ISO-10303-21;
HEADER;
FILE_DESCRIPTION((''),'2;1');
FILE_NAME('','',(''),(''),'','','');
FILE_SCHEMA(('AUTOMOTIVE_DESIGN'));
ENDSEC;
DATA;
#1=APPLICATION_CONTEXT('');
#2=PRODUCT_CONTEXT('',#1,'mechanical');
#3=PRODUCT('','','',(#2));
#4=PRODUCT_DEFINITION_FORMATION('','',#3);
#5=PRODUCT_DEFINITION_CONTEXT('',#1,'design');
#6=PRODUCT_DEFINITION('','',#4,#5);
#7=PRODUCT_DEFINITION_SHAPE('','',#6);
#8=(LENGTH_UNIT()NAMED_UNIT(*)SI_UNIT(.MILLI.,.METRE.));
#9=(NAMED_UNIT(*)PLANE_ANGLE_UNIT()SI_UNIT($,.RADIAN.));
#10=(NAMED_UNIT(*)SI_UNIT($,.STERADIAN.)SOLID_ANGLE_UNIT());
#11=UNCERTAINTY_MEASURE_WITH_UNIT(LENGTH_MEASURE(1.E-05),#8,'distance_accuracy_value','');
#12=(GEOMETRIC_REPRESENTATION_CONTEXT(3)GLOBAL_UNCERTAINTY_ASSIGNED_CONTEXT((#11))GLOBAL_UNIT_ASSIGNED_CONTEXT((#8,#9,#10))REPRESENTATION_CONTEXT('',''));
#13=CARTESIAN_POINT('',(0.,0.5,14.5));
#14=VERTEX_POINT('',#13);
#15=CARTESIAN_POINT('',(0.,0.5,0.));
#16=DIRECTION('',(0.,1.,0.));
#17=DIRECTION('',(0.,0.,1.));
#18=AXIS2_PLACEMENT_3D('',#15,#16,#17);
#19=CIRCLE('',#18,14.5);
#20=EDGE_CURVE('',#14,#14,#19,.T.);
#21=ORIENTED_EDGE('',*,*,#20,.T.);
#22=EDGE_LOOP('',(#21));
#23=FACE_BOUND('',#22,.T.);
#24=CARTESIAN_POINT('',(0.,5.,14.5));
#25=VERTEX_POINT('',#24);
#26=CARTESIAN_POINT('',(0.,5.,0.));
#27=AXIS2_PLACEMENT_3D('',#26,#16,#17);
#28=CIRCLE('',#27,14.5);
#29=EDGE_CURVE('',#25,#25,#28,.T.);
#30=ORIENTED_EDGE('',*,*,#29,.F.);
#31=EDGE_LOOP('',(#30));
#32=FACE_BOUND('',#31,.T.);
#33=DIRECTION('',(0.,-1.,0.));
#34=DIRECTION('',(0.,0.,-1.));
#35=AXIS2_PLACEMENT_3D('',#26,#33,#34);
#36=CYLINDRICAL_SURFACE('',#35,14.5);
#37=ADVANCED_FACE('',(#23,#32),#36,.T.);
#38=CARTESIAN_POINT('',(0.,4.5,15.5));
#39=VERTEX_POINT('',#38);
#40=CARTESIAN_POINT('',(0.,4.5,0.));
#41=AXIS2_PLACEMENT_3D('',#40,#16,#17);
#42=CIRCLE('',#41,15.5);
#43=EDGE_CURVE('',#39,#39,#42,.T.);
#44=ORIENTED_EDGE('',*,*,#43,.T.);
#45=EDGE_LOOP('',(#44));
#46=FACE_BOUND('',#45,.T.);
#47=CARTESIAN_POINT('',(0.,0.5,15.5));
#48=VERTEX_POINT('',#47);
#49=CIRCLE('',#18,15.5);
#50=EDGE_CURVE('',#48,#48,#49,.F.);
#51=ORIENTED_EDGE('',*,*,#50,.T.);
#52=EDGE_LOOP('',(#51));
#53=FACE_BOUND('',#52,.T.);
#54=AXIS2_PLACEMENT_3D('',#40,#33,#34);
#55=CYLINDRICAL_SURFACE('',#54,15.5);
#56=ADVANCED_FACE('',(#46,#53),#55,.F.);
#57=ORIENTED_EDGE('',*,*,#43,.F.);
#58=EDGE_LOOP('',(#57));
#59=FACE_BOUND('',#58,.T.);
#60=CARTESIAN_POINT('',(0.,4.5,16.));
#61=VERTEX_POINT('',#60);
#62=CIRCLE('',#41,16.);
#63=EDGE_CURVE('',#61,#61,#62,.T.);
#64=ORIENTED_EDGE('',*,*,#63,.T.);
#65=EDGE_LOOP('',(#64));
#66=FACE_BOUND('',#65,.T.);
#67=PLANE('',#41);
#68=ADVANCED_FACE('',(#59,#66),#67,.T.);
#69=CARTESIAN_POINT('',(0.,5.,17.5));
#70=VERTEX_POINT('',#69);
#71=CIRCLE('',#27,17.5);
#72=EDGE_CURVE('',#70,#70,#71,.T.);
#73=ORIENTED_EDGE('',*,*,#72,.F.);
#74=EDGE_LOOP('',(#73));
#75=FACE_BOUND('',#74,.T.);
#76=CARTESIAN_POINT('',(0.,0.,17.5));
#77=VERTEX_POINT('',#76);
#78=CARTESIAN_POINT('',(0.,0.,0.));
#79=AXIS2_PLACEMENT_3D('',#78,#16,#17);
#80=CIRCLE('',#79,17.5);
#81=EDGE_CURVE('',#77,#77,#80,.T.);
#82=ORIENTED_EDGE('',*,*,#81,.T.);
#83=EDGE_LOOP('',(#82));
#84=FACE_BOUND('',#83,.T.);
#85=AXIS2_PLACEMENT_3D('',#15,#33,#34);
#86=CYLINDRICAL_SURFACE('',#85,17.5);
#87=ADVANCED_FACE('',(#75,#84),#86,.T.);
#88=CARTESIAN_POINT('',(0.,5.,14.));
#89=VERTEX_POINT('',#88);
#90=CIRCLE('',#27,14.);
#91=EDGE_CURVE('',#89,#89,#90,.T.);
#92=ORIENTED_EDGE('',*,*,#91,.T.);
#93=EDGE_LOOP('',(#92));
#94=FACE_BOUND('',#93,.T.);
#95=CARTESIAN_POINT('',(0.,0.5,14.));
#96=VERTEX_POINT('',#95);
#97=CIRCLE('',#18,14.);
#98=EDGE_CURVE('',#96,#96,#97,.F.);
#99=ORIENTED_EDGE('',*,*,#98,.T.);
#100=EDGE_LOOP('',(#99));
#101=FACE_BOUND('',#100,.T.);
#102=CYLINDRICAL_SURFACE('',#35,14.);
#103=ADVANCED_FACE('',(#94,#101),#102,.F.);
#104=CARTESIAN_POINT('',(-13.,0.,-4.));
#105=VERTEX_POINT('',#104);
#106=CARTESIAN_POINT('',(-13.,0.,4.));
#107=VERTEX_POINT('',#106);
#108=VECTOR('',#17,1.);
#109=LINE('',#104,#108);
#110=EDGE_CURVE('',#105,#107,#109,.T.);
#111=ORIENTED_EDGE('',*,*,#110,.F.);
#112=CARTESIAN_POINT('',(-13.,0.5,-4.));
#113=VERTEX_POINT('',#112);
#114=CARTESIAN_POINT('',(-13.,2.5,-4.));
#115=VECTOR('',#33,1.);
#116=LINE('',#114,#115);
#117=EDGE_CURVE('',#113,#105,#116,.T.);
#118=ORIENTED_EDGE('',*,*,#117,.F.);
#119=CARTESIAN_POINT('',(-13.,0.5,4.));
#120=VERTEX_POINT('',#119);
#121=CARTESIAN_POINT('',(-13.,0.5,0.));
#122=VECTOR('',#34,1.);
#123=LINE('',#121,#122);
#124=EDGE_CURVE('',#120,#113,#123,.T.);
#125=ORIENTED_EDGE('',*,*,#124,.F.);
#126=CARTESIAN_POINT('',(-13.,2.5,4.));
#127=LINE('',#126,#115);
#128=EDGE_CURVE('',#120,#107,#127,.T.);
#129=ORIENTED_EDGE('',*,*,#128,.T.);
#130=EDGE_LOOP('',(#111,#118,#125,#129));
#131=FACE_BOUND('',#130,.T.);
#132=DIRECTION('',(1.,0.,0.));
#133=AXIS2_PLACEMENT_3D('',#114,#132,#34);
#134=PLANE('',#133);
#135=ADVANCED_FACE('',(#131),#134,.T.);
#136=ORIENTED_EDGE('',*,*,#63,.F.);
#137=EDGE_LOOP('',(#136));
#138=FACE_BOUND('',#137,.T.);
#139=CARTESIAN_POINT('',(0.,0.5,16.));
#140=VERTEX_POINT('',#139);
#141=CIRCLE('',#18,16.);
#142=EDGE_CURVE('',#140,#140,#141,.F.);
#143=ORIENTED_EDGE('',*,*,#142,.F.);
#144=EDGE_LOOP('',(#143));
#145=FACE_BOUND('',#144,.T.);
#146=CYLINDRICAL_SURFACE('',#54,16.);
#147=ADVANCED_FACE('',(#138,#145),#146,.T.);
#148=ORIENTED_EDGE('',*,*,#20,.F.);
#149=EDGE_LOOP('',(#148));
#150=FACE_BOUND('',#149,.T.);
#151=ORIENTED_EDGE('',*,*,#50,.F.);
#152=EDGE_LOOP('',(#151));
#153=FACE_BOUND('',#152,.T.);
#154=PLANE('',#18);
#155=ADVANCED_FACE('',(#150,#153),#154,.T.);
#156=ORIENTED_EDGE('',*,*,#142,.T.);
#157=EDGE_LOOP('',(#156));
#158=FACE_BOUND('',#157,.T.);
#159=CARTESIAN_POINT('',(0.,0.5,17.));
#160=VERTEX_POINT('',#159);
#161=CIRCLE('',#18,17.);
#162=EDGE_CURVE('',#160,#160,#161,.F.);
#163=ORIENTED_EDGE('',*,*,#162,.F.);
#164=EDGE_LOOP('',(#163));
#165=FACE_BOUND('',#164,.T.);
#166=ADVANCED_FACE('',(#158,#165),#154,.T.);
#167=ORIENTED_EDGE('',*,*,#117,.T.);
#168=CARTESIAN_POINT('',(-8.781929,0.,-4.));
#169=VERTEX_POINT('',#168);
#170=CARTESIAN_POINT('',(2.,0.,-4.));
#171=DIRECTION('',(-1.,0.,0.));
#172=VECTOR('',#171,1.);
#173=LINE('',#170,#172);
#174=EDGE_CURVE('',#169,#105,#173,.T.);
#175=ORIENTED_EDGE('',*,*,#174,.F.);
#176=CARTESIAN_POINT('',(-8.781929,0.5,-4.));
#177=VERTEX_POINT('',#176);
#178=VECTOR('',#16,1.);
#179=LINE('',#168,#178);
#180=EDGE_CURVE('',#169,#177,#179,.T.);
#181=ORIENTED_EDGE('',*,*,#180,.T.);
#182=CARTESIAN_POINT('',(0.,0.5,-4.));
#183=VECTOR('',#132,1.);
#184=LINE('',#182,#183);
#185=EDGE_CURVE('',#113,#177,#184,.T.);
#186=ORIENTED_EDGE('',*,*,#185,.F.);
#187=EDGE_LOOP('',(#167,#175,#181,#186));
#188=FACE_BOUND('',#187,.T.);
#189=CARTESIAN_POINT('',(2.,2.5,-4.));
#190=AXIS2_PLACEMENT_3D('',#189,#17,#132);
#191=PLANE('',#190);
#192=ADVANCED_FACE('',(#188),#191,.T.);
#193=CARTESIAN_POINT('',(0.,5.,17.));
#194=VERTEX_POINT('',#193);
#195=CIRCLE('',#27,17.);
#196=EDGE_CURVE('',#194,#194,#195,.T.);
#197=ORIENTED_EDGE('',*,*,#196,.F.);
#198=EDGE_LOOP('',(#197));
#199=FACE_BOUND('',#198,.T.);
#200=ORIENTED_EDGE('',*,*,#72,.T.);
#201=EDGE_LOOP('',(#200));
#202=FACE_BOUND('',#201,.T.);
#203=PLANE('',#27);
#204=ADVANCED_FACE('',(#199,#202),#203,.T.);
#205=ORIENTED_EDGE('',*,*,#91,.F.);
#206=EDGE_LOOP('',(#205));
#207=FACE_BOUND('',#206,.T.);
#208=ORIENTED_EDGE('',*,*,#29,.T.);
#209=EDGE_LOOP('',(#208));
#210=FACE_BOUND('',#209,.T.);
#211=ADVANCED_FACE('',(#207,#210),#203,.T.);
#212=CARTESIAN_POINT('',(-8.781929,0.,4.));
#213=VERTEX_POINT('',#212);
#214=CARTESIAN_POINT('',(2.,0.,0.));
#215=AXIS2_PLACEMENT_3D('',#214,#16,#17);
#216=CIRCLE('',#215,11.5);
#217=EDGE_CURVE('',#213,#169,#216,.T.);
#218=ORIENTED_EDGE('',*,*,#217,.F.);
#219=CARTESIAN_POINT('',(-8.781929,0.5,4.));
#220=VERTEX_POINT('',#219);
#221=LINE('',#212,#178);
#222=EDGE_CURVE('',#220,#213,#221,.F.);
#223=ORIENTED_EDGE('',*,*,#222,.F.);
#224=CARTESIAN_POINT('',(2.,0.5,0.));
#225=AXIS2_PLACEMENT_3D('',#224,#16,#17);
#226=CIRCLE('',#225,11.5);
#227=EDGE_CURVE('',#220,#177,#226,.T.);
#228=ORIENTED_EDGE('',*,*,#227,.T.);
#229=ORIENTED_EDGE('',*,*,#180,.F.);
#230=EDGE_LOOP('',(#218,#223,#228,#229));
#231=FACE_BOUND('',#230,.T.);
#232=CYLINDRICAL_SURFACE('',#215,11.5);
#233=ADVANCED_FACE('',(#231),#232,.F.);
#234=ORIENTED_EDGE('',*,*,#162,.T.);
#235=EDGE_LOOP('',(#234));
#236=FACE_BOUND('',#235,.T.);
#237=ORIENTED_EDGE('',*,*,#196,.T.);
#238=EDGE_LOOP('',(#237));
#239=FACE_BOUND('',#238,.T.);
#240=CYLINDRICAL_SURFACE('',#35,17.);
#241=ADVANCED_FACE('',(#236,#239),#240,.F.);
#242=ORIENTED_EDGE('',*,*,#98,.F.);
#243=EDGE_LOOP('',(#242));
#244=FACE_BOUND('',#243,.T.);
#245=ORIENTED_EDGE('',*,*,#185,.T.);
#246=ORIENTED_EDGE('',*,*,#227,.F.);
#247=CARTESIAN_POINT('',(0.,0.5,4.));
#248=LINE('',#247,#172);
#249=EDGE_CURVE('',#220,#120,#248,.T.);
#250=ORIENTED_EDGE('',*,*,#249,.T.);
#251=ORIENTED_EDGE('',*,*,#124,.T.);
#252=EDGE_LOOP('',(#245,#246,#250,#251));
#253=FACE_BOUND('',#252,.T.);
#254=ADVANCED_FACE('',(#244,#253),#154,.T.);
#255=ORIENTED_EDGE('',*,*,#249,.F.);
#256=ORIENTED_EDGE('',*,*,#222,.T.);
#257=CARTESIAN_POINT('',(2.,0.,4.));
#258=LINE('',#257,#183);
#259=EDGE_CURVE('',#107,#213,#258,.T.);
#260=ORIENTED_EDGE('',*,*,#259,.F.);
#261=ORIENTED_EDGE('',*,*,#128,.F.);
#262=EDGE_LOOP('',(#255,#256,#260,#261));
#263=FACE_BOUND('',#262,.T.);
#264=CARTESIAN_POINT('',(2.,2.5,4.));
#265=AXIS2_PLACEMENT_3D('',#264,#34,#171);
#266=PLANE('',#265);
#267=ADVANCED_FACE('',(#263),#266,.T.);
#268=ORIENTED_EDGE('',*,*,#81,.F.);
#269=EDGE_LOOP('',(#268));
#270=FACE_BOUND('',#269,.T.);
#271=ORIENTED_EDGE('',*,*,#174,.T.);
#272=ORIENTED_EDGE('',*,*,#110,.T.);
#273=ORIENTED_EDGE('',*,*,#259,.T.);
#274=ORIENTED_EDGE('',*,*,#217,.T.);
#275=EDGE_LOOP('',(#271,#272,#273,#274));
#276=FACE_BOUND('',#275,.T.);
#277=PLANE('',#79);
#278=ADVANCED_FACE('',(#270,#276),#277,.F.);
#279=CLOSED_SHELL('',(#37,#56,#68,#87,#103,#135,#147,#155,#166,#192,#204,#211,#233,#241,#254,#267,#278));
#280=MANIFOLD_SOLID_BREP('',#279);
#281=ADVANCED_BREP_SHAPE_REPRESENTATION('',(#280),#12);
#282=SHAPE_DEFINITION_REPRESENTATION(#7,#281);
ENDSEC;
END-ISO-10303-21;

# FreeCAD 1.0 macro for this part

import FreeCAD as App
import Part
import Sketcher
from FreeCAD import Vector
Q = App.Units.Quantity


def add_polygon(sketch, points):
    """Adds a closed chain of lines whose ends are joined by coincident constraints."""
    first, n = sketch.GeometryCount, len(points)
    for a, b in zip(points, points[1:] + points[:1]):
        sketch.addGeometry(Part.LineSegment(App.Vector(*a, 0), App.Vector(*b, 0)), False)
    for i in range(n):
        sketch.addConstraint(Sketcher.Constraint("Coincident", first + i, 2, first + (i + 1) % n, 1))

doc = App.newDocument("Part")
body = doc.addObject("PartDesign::Body", "Body")

# Sketch on XZ plane
sketch1 = body.newObject("Sketcher::SketchObject", "Sketch")
sketch1.AttachmentSupport = (doc.getObject("XZ_Plane"), [""])
sketch1.MapMode = "FlatFace"
sketch1.addGeometry(Part.Circle(Vector(0, 0, 0), Vector(0, 0, 1), 18), False)
sketch1.addConstraint([
    Sketcher.Constraint("Coincident", 0, 3, -1, 1),
    Sketcher.Constraint("Diameter", 0, Q("35 mm")),
])
pad1 = body.newObject("PartDesign::Pad", "Pad")
pad1.Profile = sketch1
pad1.Length = 0.5
pad1.Reversed = True

# Sketch on XZ plane
sketch2 = body.newObject("Sketcher::SketchObject", "Sketch001")
sketch2.AttachmentSupport = (doc.getObject("XZ_Plane"), [""])
sketch2.MapMode = "FlatFace"
sketch2.AttachmentOffset = App.Placement(Vector(0, 0, -0.5), App.Rotation())
sketch2.addGeometry(Part.Circle(Vector(2, 0, 0), Vector(0, 0, 1), 12), False)
sketch2.addConstraint([
    Sketcher.Constraint("PointOnObject", 0, 3, -1),
    Sketcher.Constraint("Diameter", 0, Q("23 mm")),
    Sketcher.Constraint("DistanceX", -1, 1, 0, 3, Q("2 mm")),
])
pocket1 = body.newObject("PartDesign::Pocket", "Pocket")
pocket1.Profile = sketch2
pocket1.Length = 0.5
pocket1.Reversed = True

# Sketch on XZ plane
sketch3 = body.newObject("Sketcher::SketchObject", "Sketch002")
sketch3.AttachmentSupport = (doc.getObject("XZ_Plane"), [""])
sketch3.MapMode = "FlatFace"
add_polygon(sketch3, [(-13, -4), (-13, 4), (2, 4), (2, -4)])  # lines 0-3
sketch3.addConstraint([
    Sketcher.Constraint("Vertical", 0),
    Sketcher.Constraint("Horizontal", 1),
    Sketcher.Constraint("Vertical", 2),
    Sketcher.Constraint("Horizontal", 3),
    Sketcher.Constraint("DistanceX", 1, 1, 1, 2, Q("15 mm")),
    Sketcher.Constraint("DistanceY", 0, 1, 0, 2, Q("8 mm")),
    Sketcher.Constraint("DistanceX", 0, 2, -1, 1, Q("13 mm")),
    Sketcher.Constraint("DistanceY", -1, 1, 0, 2, Q("4 mm")),
])
pocket2 = body.newObject("PartDesign::Pocket", "Pocket001")
pocket2.Profile = sketch3
pocket2.Length = 2.5

# Sketch on XZ plane
sketch4 = body.newObject("Sketcher::SketchObject", "Sketch003")
sketch4.AttachmentSupport = (doc.getObject("XZ_Plane"), [""])
sketch4.MapMode = "FlatFace"
sketch4.addGeometry([
    Part.Circle(Vector(0, 0, 0), Vector(0, 0, 1), 16),
    Part.Circle(Vector(0, 0, 0), Vector(0, 0, 1), 16),
], False)
sketch4.addConstraint([
    Sketcher.Constraint("Coincident", 0, 3, -1, 1),
    Sketcher.Constraint("Coincident", 1, 3, -1, 1),
    Sketcher.Constraint("Diameter", 0, Q("32 mm")),
    Sketcher.Constraint("Diameter", 1, Q("31 mm")),
])
pad2 = body.newObject("PartDesign::Pad", "Pad001")
pad2.Profile = sketch4
pad2.Length = 4.5
pad2.Reversed = True

# Sketch on XZ plane
sketch5 = body.newObject("Sketcher::SketchObject", "Sketch004")
sketch5.AttachmentSupport = (doc.getObject("XZ_Plane"), [""])
sketch5.MapMode = "FlatFace"
sketch5.AttachmentOffset = App.Placement(Vector(0, 0, -0.5), App.Rotation())
sketch5.addGeometry([
    Part.Circle(Vector(0, 0, 0), Vector(0, 0, 1), 14),
    Part.Circle(Vector(0, 0, 0), Vector(0, 0, 1), 14),
], False)
sketch5.addConstraint([
    Sketcher.Constraint("Coincident", 0, 3, -1, 1),
    Sketcher.Constraint("Coincident", 1, 3, -1, 1),
    Sketcher.Constraint("Diameter", 0, Q("29 mm")),
    Sketcher.Constraint("Diameter", 1, Q("28 mm")),
])
pad3 = body.newObject("PartDesign::Pad", "Pad002")
pad3.Profile = sketch5
pad3.Length = 4.5
pad3.Reversed = True

# Sketch on XZ plane
sketch6 = body.newObject("Sketcher::SketchObject", "Sketch005")
sketch6.AttachmentSupport = (doc.getObject("XZ_Plane"), [""])
sketch6.MapMode = "FlatFace"
sketch6.AttachmentOffset = App.Placement(Vector(0, 0, -0.5), App.Rotation())
sketch6.addGeometry([
    Part.Circle(Vector(0, 0, 0), Vector(0, 0, 1), 18),
    Part.Circle(Vector(0, 0, 0), Vector(0, 0, 1), 17),
], False)
sketch6.addConstraint([
    Sketcher.Constraint("Coincident", 0, 3, -1, 1),
    Sketcher.Constraint("Coincident", 1, 3, -1, 1),
    Sketcher.Constraint("Diameter", 0, Q("35 mm")),
    Sketcher.Constraint("Diameter", 1, Q("34 mm")),
])
pad4 = body.newObject("PartDesign::Pad", "Pad003")
pad4.Profile = sketch6
pad4.Length = 4.5
pad4.Reversed = True

doc.recompute()
